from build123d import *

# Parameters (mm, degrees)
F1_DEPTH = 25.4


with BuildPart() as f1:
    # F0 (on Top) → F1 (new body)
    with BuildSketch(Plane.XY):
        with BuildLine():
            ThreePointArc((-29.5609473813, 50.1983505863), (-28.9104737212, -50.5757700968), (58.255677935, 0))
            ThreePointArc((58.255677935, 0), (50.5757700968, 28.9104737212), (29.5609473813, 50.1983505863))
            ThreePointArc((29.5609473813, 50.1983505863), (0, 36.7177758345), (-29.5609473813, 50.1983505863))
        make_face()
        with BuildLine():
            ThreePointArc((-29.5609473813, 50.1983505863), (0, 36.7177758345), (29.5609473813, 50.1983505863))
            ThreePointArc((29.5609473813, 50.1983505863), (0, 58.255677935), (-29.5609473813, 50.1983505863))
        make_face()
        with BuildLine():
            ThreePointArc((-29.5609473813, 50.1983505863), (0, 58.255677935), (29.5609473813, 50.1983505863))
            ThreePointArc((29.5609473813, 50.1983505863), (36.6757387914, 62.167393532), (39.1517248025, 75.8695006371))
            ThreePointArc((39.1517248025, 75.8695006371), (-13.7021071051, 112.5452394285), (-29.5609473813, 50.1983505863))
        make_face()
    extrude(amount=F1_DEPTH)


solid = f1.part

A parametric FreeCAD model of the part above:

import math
import FreeCAD as App
import Part
import Sketcher
from FreeCAD import Vector
Q = App.Units.Quantity

doc = App.newDocument("Part")
body = doc.addObject("PartDesign::Body", "Body")

sketch1 = body.newObject("Sketcher::SketchObject", "Sketch")
sketch1.AttachmentSupport = (doc.getObject("XY_Plane"), [""])
sketch1.MapMode = "FlatFace"
sketch1.addGeometry([
    Part.ArcOfCircle(Part.Circle(Vector(0, 76, 0), Vector(0, 0, 1), 39), math.radians(-41), math.radians(0)),
    Part.ArcOfCircle(Part.Circle(Vector(0, 76, 0), Vector(0, 0, 1), 39), math.radians(0), math.radians(221)),
    Part.ArcOfCircle(Part.Circle(Vector(0, 0, 0), Vector(0, 0, 1), 58), math.radians(120), math.radians(420)),
], False)
sketch1.addConstraint([
    Sketcher.Constraint("Tangent", 0, 2, 1, 1),
    Sketcher.Constraint("Coincident", 1, 2, 2, 1),
    Sketcher.Constraint("Coincident", 2, 2, 0, 1),
    Sketcher.Constraint("Coincident", 2, 3, -1, 1),
    Sketcher.Constraint("Equal", 0, 1),
    Sketcher.Constraint("PointOnObject", 0, 3, -2),
    Sketcher.Constraint("Horizontal", 1, 3, 0, 2),
    Sketcher.Constraint("Radius", 0, 39.151725),
    Sketcher.Constraint("Radius", 2, 58.255678),
    Sketcher.Constraint("DistanceY", -1, 1, 0, 3, 75.869501),
])
pad1 = body.newObject("PartDesign::Pad", "Pad")
pad1.Profile = sketch1
pad1.Length = Q("1 in")

doc.recompute()
